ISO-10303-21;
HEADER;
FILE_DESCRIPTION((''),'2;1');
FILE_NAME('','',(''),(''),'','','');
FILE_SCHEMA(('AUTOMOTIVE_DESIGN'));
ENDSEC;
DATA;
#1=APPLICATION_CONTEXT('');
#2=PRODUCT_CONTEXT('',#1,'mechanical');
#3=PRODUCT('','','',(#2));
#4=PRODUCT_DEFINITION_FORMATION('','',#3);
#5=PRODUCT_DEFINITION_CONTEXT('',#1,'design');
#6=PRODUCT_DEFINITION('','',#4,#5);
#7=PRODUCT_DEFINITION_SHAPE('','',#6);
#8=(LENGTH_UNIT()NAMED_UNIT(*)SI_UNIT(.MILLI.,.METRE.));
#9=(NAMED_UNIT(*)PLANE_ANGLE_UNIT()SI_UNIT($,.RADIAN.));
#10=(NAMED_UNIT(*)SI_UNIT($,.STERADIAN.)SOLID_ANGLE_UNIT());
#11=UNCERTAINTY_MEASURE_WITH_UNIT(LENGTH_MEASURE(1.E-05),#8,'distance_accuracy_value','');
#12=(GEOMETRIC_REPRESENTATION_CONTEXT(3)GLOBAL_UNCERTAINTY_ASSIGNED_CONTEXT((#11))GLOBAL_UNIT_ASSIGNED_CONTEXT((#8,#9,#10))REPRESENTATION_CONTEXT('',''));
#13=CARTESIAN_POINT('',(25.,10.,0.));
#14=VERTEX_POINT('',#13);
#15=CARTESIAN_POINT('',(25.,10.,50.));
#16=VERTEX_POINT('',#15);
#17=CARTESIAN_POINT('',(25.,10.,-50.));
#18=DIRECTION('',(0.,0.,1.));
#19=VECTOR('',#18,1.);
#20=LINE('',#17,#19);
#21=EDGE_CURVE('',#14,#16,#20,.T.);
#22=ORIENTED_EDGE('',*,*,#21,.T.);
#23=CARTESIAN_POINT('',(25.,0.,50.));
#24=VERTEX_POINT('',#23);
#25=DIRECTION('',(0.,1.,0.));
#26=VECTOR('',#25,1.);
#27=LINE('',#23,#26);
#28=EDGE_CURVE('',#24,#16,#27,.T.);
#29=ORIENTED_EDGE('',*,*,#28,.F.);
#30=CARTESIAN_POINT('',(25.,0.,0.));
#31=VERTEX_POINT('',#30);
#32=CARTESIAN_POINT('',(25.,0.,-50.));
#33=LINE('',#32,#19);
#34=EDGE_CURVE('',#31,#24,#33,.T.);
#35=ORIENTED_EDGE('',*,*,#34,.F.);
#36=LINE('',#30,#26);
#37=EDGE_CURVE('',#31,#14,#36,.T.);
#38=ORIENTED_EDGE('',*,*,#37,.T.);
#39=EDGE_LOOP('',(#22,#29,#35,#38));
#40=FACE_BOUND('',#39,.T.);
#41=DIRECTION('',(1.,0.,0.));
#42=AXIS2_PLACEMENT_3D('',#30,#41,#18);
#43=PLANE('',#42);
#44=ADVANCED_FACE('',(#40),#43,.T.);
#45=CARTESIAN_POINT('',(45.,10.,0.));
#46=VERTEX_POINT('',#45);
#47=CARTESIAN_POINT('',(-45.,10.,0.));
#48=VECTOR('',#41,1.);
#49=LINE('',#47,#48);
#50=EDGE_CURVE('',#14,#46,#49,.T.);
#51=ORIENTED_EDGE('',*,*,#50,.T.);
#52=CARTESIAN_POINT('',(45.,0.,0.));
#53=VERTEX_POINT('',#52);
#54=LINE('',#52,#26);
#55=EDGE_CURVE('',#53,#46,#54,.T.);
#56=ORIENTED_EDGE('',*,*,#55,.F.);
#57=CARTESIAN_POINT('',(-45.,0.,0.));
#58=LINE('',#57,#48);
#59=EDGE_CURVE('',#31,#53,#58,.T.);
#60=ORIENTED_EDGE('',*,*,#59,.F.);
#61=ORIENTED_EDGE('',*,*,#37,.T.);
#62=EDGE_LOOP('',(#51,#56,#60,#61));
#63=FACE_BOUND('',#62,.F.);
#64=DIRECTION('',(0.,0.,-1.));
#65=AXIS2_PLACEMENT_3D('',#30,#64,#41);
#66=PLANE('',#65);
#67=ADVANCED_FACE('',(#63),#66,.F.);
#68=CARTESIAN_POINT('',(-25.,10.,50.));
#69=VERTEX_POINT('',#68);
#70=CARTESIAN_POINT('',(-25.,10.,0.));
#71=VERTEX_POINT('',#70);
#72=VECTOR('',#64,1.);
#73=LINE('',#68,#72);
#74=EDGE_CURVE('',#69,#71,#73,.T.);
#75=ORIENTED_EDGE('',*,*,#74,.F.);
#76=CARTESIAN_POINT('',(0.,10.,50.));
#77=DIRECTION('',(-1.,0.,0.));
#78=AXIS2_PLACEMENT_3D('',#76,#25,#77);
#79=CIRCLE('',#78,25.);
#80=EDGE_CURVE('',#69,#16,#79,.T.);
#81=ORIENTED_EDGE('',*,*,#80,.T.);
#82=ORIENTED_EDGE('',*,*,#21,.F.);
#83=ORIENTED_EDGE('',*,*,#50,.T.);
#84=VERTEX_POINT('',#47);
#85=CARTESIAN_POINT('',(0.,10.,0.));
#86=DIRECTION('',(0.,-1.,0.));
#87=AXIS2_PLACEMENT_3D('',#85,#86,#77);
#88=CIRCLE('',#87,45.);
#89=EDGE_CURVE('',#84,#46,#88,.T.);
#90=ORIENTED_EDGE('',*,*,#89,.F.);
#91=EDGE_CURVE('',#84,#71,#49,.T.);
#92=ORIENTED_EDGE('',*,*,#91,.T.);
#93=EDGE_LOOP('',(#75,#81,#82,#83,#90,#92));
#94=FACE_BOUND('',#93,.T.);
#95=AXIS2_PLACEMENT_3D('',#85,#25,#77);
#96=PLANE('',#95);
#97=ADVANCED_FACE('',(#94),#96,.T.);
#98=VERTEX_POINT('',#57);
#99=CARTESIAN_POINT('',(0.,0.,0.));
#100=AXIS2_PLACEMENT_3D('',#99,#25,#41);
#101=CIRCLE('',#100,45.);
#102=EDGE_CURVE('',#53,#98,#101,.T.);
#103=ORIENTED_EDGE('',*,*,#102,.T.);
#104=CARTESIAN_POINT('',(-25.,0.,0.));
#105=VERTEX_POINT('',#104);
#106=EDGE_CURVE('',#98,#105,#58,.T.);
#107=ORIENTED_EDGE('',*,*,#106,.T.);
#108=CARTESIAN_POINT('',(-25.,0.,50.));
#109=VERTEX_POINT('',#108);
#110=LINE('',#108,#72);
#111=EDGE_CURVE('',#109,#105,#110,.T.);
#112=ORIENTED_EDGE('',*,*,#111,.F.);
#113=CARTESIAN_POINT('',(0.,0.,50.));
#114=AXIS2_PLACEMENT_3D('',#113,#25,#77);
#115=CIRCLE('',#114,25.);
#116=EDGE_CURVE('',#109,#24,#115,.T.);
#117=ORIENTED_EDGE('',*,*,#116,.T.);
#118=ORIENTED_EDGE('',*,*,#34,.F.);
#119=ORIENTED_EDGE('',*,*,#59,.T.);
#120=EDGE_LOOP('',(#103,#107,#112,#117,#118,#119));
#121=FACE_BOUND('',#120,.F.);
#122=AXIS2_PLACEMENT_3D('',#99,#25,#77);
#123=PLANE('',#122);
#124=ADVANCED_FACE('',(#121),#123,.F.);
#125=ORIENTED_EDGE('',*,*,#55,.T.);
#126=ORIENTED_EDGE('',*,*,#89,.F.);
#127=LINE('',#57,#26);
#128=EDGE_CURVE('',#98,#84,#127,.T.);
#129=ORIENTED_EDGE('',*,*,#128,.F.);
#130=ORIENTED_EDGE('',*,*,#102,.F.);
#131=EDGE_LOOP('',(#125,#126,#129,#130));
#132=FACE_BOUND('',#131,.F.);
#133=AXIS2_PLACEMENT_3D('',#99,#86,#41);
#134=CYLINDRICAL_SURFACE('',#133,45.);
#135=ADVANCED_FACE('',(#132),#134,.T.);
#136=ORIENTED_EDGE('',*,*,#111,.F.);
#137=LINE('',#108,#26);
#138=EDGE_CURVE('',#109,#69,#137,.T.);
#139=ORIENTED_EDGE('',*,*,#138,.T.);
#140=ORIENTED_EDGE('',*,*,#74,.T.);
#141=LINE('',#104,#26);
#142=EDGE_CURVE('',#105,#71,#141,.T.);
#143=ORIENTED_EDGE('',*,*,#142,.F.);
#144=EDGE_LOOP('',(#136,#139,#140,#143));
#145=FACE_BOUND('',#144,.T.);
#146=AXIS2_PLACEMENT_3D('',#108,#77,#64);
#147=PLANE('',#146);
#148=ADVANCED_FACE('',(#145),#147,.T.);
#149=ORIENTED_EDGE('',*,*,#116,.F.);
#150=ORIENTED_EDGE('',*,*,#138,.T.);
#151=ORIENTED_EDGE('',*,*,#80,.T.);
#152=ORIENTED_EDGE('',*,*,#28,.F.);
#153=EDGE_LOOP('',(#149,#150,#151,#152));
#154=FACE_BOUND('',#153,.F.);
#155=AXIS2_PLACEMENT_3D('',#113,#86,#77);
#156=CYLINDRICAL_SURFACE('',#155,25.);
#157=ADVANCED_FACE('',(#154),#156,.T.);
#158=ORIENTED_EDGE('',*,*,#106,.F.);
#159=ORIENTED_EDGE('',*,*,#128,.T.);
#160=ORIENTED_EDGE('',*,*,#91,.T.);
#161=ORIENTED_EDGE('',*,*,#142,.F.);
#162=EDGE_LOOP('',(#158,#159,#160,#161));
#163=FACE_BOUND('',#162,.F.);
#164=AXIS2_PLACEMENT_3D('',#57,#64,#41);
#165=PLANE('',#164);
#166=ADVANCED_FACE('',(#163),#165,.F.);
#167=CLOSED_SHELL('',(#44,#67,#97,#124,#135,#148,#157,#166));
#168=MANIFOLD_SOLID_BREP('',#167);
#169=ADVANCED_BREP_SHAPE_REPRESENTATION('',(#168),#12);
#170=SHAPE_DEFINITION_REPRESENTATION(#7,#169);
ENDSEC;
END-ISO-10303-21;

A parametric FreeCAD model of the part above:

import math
import FreeCAD as App
import Part
import Sketcher

V = App.Vector

doc = App.newDocument("Part")
params = doc.addObject("Spreadsheet::Sheet", "Params")
for row, (alias, value) in enumerate([
    ("sketch1_radius", "45 mm"),
    ("sketch1_radius2", "25 mm"),
    ("sketch1_height", "50 mm"),
    ("pad1_length", "10 mm"),
], start=1):
    params.set(f"A{row}", alias)
    params.set(f"B{row}", "=" + value)
    params.setAlias(f"B{row}", alias)

body = doc.addObject("PartDesign::Body", "Body")

sketch1 = body.newObject("Sketcher::SketchObject", "Sketch")
sketch1.AttachmentSupport = (doc.getObject("XZ_Plane"), [""])
sketch1.MapMode = "FlatFace"
sketch1.addGeometry([
    Part.LineSegment(V(25, 0, 0), V(45, 0, 0)),
    Part.ArcOfCircle(Part.Circle(V(0, 0, 0), V(0, 0, 1), 45), math.radians(180), math.radians(360)),
    Part.LineSegment(V(-45, 0, 0), V(-25, 0, 0)),
    Part.LineSegment(V(-25, 0, 0), V(-25, 50, 0)),
    Part.ArcOfCircle(Part.Circle(V(0, 50, 0), V(0, 0, 1), 25), math.radians(0), math.radians(180)),
    Part.LineSegment(V(25, 50, 0), V(25, 0, 0)),
], False)
sketch1.addConstraint([
    Sketcher.Constraint("Coincident", 0, 2, 1, 2),
    Sketcher.Constraint("Coincident", 1, 1, 2, 1),
    Sketcher.Constraint("Coincident", 2, 2, 3, 1),
    Sketcher.Constraint("Tangent", 3, 2, 4, 2),
    Sketcher.Constraint("Tangent", 4, 1, 5, 1),
    Sketcher.Constraint("Coincident", 5, 2, 0, 1),
    Sketcher.Constraint("Horizontal", 0),
    Sketcher.Constraint("Horizontal", 2),
    Sketcher.Constraint("Vertical", 3),
    Sketcher.Constraint("Vertical", 5),
    Sketcher.Constraint("Coincident", 1, 3, -1, 1),
    Sketcher.Constraint("Symmetric", 2, 2, 5, 2, -1, 1),
    Sketcher.Constraint("PointOnObject", 0, 2, -1),
    Sketcher.Constraint("Radius", 1, 45.0),
    Sketcher.Constraint("Radius", 4, 25.0),
    Sketcher.Constraint("DistanceY", 3, 1, 3, 2, 50.0),
])
sketch1.setExpression("Constraints[13]", "Params.sketch1_radius")
sketch1.setExpression("Constraints[14]", "Params.sketch1_radius2")
sketch1.setExpression("Constraints[15]", "Params.sketch1_height")
pad1 = body.newObject("PartDesign::Pad", "Pad")
pad1.Profile = sketch1
pad1.setExpression("Length", "Params.pad1_length")
pad1.Reversed = True

doc.recompute()
